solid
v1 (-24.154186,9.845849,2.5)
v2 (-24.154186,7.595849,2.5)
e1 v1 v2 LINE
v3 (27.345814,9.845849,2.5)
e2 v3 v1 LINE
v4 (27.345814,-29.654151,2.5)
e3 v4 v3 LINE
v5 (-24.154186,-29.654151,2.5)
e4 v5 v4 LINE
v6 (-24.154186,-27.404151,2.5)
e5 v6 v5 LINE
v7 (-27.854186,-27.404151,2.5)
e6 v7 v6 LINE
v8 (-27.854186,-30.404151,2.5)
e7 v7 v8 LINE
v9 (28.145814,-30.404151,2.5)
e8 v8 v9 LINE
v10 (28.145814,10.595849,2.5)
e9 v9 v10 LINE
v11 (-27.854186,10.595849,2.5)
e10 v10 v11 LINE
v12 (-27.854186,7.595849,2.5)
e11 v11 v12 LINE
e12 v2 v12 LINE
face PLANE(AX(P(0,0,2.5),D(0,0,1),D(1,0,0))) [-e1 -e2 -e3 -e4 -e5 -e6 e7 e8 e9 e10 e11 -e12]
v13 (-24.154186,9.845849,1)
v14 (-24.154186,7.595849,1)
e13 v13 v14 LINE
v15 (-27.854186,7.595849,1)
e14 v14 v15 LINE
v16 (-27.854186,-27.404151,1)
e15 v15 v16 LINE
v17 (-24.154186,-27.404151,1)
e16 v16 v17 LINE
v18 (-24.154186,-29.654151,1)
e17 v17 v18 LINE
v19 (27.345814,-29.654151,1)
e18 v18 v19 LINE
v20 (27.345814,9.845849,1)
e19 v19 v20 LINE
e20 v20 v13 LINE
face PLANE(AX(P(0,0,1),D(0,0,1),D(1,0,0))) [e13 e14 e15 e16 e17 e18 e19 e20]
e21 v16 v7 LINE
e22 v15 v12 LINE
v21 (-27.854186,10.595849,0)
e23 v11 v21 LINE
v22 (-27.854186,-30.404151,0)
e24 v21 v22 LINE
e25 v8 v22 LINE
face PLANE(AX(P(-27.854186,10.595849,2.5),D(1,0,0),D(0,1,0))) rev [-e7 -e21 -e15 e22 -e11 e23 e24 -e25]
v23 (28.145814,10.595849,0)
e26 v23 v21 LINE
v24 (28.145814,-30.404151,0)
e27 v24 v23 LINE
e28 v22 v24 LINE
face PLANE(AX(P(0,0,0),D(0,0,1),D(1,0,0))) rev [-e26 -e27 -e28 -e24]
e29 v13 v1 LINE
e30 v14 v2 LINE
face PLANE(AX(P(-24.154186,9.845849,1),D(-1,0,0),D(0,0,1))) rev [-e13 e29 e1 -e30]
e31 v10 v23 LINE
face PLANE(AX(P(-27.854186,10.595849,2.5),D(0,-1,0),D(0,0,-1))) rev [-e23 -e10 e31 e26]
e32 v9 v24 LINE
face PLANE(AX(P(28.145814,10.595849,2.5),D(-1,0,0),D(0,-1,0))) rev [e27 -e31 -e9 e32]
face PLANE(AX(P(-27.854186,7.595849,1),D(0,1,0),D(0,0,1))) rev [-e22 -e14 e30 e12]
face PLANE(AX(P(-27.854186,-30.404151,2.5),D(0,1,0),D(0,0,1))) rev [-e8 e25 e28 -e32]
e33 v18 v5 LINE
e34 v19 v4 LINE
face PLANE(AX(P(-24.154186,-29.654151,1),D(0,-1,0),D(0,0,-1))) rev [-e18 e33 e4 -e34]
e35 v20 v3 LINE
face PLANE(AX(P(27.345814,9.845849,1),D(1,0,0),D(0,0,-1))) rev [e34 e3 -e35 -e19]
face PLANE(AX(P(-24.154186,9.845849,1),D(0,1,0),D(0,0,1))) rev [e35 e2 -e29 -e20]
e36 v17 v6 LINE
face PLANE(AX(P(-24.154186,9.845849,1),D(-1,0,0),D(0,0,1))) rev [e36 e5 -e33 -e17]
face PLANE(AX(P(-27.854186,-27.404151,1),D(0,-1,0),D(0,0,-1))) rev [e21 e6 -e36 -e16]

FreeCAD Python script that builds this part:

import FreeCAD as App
import Part
import Sketcher

V = App.Vector
Q = App.Units.Quantity


def add_polygon(sketch, points):
    """Adds a closed chain of lines whose ends are joined by coincident constraints."""
    first, n = sketch.GeometryCount, len(points)
    for a, b in zip(points, points[1:] + points[:1]):
        sketch.addGeometry(Part.LineSegment(App.Vector(*a, 0), App.Vector(*b, 0)), False)
    for i in range(n):
        sketch.addConstraint(Sketcher.Constraint("Coincident", first + i, 2, first + (i + 1) % n, 1))

doc = App.newDocument("Part")
body = doc.addObject("PartDesign::Body", "Body")

sketch1 = body.newObject("Sketcher::SketchObject", "Sketch")
sketch1.AttachmentSupport = (doc.getObject("XY_Plane"), [""])
sketch1.MapMode = "FlatFace"
add_polygon(sketch1, [(-28, 11), (-28, -30), (28, -30), (28, 11)])
sketch1.addConstraint([
    Sketcher.Constraint("Vertical", 0),
    Sketcher.Constraint("Horizontal", 1),
    Sketcher.Constraint("Vertical", 2),
    Sketcher.Constraint("Horizontal", 3),
    Sketcher.Constraint("DistanceX", 1, 1, 1, 2, Q("56 mm")),
    Sketcher.Constraint("DistanceY", 0, 2, 0, 1, Q("41 mm")),
    Sketcher.Constraint("DistanceY", 0, 2, -1, 1, Q("30.404151 mm")),
    Sketcher.Constraint("DistanceX", 0, 2, -1, 1, Q("27.854186 mm")),
])
pad1 = body.newObject("PartDesign::Pad", "Pad")
pad1.Profile = sketch1
pad1.Length = 2.5

sketch2 = body.newObject("Sketcher::SketchObject", "Sketch001")
sketch2.AttachmentSupport = (doc.getObject("XY_Plane"), [""])
sketch2.MapMode = "FlatFace"
sketch2.AttachmentOffset = App.Placement(V(0, 0, 2.5), App.Rotation())
add_polygon(sketch2, [(-24, 10), (-24, -30), (27, -30), (27, 10)])
sketch2.addConstraint([
    Sketcher.Constraint("Vertical", 0),
    Sketcher.Constraint("Horizontal", 1),
    Sketcher.Constraint("Vertical", 2),
    Sketcher.Constraint("Horizontal", 3),
    Sketcher.Constraint("DistanceX", 1, 1, 1, 2, Q("51.5 mm")),
    Sketcher.Constraint("DistanceY", 0, 2, 0, 1, Q("39.5 mm")),
    Sketcher.Constraint("DistanceY", 0, 2, -1, 1, Q("29.654151 mm")),
    Sketcher.Constraint("DistanceX", 0, 2, -1, 1, Q("24.154186 mm")),
])
pocket1 = body.newObject("PartDesign::Pocket", "Pocket")
pocket1.Profile = sketch2
pocket1.Length = 1.5

sketch3 = body.newObject("Sketcher::SketchObject", "Sketch002")
sketch3.AttachmentSupport = (doc.getObject("XY_Plane"), [""])
sketch3.MapMode = "FlatFace"
sketch3.AttachmentOffset = App.Placement(V(0, 0, 2.5), App.Rotation())
add_polygon(sketch3, [(-27.9, 7.6), (-27.9, -27.4), (-24.2, -27.4), (-24.2, 7.6)])
sketch3.addConstraint([
    Sketcher.Constraint("Vertical", 0),
    Sketcher.Constraint("Horizontal", 1),
    Sketcher.Constraint("Vertical", 2),
    Sketcher.Constraint("Horizontal", 3),
    Sketcher.Constraint("DistanceY", 0, 2, 0, 1, Q("35 mm")),
    Sketcher.Constraint("DistanceX", 1, 1, 1, 2, Q("3.7 mm")),
    Sketcher.Constraint("DistanceY", 0, 2, -1, 1, Q("27.404151 mm")),
    Sketcher.Constraint("DistanceX", 0, 2, -1, 1, Q("27.854186 mm")),
])
pocket2 = body.newObject("PartDesign::Pocket", "Pocket001")
pocket2.Profile = sketch3
pocket2.Length = 1.5

doc.recompute()
